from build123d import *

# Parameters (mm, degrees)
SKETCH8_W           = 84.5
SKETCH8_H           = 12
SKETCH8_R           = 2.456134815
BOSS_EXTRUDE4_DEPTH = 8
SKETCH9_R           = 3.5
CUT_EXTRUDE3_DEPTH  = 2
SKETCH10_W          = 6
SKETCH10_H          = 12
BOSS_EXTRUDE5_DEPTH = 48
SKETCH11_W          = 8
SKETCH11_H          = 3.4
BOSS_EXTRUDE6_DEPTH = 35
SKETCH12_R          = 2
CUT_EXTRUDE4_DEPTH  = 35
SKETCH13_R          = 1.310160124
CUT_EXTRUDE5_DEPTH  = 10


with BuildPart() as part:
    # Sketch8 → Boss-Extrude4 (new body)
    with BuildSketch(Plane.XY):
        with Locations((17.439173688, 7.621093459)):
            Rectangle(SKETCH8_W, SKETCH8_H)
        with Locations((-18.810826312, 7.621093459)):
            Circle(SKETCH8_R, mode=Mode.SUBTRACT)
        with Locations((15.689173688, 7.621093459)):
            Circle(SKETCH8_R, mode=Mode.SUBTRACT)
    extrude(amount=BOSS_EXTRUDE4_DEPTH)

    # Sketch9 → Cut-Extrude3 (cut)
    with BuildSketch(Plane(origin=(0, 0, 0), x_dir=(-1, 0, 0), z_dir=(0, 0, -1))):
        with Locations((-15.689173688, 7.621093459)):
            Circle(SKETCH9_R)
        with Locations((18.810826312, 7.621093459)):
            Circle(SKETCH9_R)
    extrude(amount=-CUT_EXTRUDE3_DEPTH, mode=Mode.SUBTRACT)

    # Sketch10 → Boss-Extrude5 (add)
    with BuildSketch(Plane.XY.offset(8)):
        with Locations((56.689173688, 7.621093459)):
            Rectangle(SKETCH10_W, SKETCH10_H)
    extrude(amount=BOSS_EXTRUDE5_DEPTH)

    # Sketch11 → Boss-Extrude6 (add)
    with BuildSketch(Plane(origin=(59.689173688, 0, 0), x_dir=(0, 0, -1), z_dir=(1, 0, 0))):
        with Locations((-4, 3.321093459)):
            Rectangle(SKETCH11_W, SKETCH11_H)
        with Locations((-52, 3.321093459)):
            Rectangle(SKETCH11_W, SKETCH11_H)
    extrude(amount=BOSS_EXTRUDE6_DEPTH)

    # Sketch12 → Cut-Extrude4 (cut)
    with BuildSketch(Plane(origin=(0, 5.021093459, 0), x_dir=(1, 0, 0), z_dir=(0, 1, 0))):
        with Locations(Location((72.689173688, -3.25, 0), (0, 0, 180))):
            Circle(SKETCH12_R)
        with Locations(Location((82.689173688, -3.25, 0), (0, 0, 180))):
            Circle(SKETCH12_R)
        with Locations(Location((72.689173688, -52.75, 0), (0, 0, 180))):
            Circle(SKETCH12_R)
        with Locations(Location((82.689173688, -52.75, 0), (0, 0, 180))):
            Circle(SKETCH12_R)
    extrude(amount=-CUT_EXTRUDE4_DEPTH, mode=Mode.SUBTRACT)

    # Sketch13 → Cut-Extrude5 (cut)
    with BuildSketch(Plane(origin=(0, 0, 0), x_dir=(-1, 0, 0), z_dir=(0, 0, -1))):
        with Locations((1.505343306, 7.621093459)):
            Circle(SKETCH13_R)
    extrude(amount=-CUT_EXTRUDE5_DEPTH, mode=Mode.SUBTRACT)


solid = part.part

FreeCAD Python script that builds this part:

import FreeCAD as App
import Part
import Sketcher
from FreeCAD import Vector


def add_polygon(sketch, points):
    """Adds a closed chain of lines whose ends are joined by coincident constraints."""
    first, n = sketch.GeometryCount, len(points)
    for a, b in zip(points, points[1:] + points[:1]):
        sketch.addGeometry(Part.LineSegment(App.Vector(*a, 0), App.Vector(*b, 0)), False)
    for i in range(n):
        sketch.addConstraint(Sketcher.Constraint("Coincident", first + i, 2, first + (i + 1) % n, 1))

doc = App.newDocument("Part")
body = doc.addObject("PartDesign::Body", "Body")

sketch1 = body.newObject("Sketcher::SketchObject", "Sketch")
sketch1.AttachmentSupport = (doc.getObject("XY_Plane"), [""])
sketch1.MapMode = "FlatFace"
add_polygon(sketch1, [(-24.8, 13.6), (-24.8, 1.6), (59.7, 1.6), (59.7, 13.6)])
sketch1.addGeometry(Part.Circle(Vector(-18.8, 7.6, 0), Vector(0, 0, 1), 2.5), False)
sketch1.addGeometry(Part.Circle(Vector(15.7, 7.6, 0), Vector(0, 0, 1), 2.5), False)
sketch1.addConstraint([
    Sketcher.Constraint("Vertical", 0),
    Sketcher.Constraint("Horizontal", 1),
    Sketcher.Constraint("Vertical", 2),
    Sketcher.Constraint("Horizontal", 3),
    Sketcher.Constraint("Equal", 4, 5),
    Sketcher.Constraint("Horizontal", 4, 3, 5, 3),
    Sketcher.Constraint("DistanceY", 0, 2, 0, 1, 12.0),
    Sketcher.Constraint("DistanceX", 1, 1, 1, 2, 84.5),
    Sketcher.Constraint("DistanceX", 0, 2, 4, 3, 6.0),
    Sketcher.Constraint("DistanceY", 0, 2, 4, 3, 6.0),
    Sketcher.Constraint("DistanceX", 5, 3, 1, 2, 44.0),
    Sketcher.Constraint("Diameter", 4, 4.91227),
    Sketcher.Constraint("DistanceX", 4, 3, -1, 1, 18.810826),
    Sketcher.Constraint("DistanceY", -1, 1, 4, 3, 7.621093),
])
pad1 = body.newObject("PartDesign::Pad", "Pad")
pad1.Profile = sketch1
pad1.Length = 8

sketch2 = body.newObject("Sketcher::SketchObject", "Sketch001")
sketch2.AttachmentSupport = (doc.getObject("XY_Plane"), [""])
sketch2.MapMode = "FlatFace"
sketch2.addGeometry([
    Part.Circle(Vector(15.7, 7.6, 0), Vector(0, 0, 1), 3.5),
    Part.Circle(Vector(-18.8, 7.6, 0), Vector(0, 0, 1), 3.5),
], False)
sketch2.addConstraint([
    Sketcher.Constraint("Equal", 0, 1),
    Sketcher.Constraint("Horizontal", 0, 3, 1, 3),
    Sketcher.Constraint("Diameter", 0, 7.0),
    Sketcher.Constraint("DistanceX", 1, 3, 0, 3, 34.5),
    Sketcher.Constraint("DistanceX", -1, 1, 0, 3, 15.689174),
    Sketcher.Constraint("DistanceY", -1, 1, 0, 3, 7.621093),
])
pocket1 = body.newObject("PartDesign::Pocket", "Pocket")
pocket1.Profile = sketch2
pocket1.Length = 2
pocket1.Reversed = True

sketch3 = body.newObject("Sketcher::SketchObject", "Sketch002")
sketch3.AttachmentSupport = (doc.getObject("XY_Plane"), [""])
sketch3.MapMode = "FlatFace"
sketch3.AttachmentOffset = App.Placement(Vector(0, 0, 8), App.Rotation())
add_polygon(sketch3, [(54, 14), (54, 2), (60, 2), (60, 14)])
sketch3.addConstraint([
    Sketcher.Constraint("Vertical", 0),
    Sketcher.Constraint("Horizontal", 1),
    Sketcher.Constraint("Vertical", 2),
    Sketcher.Constraint("Horizontal", 3),
    Sketcher.Constraint("DistanceX", 1, 1, 1, 2, 6.0),
    Sketcher.Constraint("DistanceY", 0, 2, 0, 1, 12.0),
    Sketcher.Constraint("DistanceX", -1, 1, 0, 2, 53.689174),
    Sketcher.Constraint("DistanceY", -1, 1, 0, 2, 1.621093),
])
pad2 = body.newObject("PartDesign::Pad", "Pad001")
pad2.Profile = sketch3
pad2.Length = 48

sketch4 = body.newObject("Sketcher::SketchObject", "Sketch003")
sketch4.AttachmentSupport = (doc.getObject("YZ_Plane"), [""])
sketch4.MapMode = "FlatFace"
sketch4.AttachmentOffset = App.Placement(Vector(0, 0, 59.689174), App.Rotation())
add_polygon(sketch4, [(5, 8), (1.6, 8), (1.6, 0), (5, 0)])
add_polygon(sketch4, [(5, 56), (1.6, 56), (1.6, 48), (5, 48)])
sketch4.addConstraint([
    Sketcher.Constraint("Horizontal", 0),
    Sketcher.Constraint("Vertical", 1),
    Sketcher.Constraint("Horizontal", 2),
    Sketcher.Constraint("Vertical", 3),
    Sketcher.Constraint("Horizontal", 4),
    Sketcher.Constraint("Vertical", 5),
    Sketcher.Constraint("Horizontal", 6),
    Sketcher.Constraint("Vertical", 7),
    Sketcher.Constraint("PointOnObject", 1, 2, -1),
    Sketcher.Constraint("Vertical", 1, 2, 4, 2),
    Sketcher.Constraint("Vertical", 3, 2, 6, 2),
    Sketcher.Constraint("Equal", 3, 5),
    Sketcher.Constraint("DistanceY", 1, 2, 1, 1, 8.0),
    Sketcher.Constraint("DistanceX", 0, 2, 0, 1, 3.4),
    Sketcher.Constraint("DistanceY", -1, 1, 4, 2, 56.0),
    Sketcher.Constraint("DistanceX", -1, 1, 0, 2, 1.621093),
])
pad3 = body.newObject("PartDesign::Pad", "Pad002")
pad3.Profile = sketch4
pad3.Length = 35

sketch5 = body.newObject("Sketcher::SketchObject", "Sketch004")
sketch5.AttachmentSupport = (doc.getObject("XZ_Plane"), [""])
sketch5.MapMode = "FlatFace"
sketch5.AttachmentOffset = App.Placement(Vector(0, 0, -5.021093), App.Rotation())
sketch5.addGeometry([
    Part.Circle(Vector(72.7, 3.2, 0), Vector(0, 0, 1), 2),
    Part.Circle(Vector(82.7, 3.2, 0), Vector(0, 0, 1), 2),
    Part.Circle(Vector(72.7, 52.8, 0), Vector(0, 0, 1), 2),
    Part.Circle(Vector(82.7, 52.8, 0), Vector(0, 0, 1), 2),
], False)
sketch5.addConstraint([
    Sketcher.Constraint("Equal", 0, 1),
    Sketcher.Constraint("Equal", 1, 2),
    Sketcher.Constraint("Equal", 2, 3),
    Sketcher.Constraint("Horizontal", 0, 3, 1, 3),
    Sketcher.Constraint("Horizontal", 2, 3, 3, 3),
    Sketcher.Constraint("Vertical", 0, 3, 2, 3),
    Sketcher.Constraint("Vertical", 1, 3, 3, 3),
    Sketcher.Constraint("Diameter", 0, 4.0),
    Sketcher.Constraint("DistanceX", 0, 3, 1, 3, 10.0),
    Sketcher.Constraint("DistanceY", 0, 3, 2, 3, 49.5),
    Sketcher.Constraint("DistanceY", -1, 1, 0, 3, 3.25),
    Sketcher.Constraint("DistanceX", -1, 1, 0, 3, 72.689174),
])
pocket2 = body.newObject("PartDesign::Pocket", "Pocket001")
pocket2.Profile = sketch5
pocket2.Length = 35
pocket2.Reversed = True

sketch6 = body.newObject("Sketcher::SketchObject", "Sketch005")
sketch6.AttachmentSupport = (doc.getObject("XY_Plane"), [""])
sketch6.MapMode = "FlatFace"
sketch6.addGeometry(Part.Circle(Vector(-1.5, 7.6, 0), Vector(0, 0, 1), 1.3), False)
sketch6.addConstraint([
    Sketcher.Constraint("Diameter", 0, 2.62032),
    Sketcher.Constraint("DistanceX", 0, 3, -1, 1, 1.505343),
    Sketcher.Constraint("DistanceY", -1, 1, 0, 3, 7.621093),
])
pocket3 = body.newObject("PartDesign::Pocket", "Pocket002")
pocket3.Profile = sketch6
pocket3.Length = 10
pocket3.Reversed = True

doc.recompute()
